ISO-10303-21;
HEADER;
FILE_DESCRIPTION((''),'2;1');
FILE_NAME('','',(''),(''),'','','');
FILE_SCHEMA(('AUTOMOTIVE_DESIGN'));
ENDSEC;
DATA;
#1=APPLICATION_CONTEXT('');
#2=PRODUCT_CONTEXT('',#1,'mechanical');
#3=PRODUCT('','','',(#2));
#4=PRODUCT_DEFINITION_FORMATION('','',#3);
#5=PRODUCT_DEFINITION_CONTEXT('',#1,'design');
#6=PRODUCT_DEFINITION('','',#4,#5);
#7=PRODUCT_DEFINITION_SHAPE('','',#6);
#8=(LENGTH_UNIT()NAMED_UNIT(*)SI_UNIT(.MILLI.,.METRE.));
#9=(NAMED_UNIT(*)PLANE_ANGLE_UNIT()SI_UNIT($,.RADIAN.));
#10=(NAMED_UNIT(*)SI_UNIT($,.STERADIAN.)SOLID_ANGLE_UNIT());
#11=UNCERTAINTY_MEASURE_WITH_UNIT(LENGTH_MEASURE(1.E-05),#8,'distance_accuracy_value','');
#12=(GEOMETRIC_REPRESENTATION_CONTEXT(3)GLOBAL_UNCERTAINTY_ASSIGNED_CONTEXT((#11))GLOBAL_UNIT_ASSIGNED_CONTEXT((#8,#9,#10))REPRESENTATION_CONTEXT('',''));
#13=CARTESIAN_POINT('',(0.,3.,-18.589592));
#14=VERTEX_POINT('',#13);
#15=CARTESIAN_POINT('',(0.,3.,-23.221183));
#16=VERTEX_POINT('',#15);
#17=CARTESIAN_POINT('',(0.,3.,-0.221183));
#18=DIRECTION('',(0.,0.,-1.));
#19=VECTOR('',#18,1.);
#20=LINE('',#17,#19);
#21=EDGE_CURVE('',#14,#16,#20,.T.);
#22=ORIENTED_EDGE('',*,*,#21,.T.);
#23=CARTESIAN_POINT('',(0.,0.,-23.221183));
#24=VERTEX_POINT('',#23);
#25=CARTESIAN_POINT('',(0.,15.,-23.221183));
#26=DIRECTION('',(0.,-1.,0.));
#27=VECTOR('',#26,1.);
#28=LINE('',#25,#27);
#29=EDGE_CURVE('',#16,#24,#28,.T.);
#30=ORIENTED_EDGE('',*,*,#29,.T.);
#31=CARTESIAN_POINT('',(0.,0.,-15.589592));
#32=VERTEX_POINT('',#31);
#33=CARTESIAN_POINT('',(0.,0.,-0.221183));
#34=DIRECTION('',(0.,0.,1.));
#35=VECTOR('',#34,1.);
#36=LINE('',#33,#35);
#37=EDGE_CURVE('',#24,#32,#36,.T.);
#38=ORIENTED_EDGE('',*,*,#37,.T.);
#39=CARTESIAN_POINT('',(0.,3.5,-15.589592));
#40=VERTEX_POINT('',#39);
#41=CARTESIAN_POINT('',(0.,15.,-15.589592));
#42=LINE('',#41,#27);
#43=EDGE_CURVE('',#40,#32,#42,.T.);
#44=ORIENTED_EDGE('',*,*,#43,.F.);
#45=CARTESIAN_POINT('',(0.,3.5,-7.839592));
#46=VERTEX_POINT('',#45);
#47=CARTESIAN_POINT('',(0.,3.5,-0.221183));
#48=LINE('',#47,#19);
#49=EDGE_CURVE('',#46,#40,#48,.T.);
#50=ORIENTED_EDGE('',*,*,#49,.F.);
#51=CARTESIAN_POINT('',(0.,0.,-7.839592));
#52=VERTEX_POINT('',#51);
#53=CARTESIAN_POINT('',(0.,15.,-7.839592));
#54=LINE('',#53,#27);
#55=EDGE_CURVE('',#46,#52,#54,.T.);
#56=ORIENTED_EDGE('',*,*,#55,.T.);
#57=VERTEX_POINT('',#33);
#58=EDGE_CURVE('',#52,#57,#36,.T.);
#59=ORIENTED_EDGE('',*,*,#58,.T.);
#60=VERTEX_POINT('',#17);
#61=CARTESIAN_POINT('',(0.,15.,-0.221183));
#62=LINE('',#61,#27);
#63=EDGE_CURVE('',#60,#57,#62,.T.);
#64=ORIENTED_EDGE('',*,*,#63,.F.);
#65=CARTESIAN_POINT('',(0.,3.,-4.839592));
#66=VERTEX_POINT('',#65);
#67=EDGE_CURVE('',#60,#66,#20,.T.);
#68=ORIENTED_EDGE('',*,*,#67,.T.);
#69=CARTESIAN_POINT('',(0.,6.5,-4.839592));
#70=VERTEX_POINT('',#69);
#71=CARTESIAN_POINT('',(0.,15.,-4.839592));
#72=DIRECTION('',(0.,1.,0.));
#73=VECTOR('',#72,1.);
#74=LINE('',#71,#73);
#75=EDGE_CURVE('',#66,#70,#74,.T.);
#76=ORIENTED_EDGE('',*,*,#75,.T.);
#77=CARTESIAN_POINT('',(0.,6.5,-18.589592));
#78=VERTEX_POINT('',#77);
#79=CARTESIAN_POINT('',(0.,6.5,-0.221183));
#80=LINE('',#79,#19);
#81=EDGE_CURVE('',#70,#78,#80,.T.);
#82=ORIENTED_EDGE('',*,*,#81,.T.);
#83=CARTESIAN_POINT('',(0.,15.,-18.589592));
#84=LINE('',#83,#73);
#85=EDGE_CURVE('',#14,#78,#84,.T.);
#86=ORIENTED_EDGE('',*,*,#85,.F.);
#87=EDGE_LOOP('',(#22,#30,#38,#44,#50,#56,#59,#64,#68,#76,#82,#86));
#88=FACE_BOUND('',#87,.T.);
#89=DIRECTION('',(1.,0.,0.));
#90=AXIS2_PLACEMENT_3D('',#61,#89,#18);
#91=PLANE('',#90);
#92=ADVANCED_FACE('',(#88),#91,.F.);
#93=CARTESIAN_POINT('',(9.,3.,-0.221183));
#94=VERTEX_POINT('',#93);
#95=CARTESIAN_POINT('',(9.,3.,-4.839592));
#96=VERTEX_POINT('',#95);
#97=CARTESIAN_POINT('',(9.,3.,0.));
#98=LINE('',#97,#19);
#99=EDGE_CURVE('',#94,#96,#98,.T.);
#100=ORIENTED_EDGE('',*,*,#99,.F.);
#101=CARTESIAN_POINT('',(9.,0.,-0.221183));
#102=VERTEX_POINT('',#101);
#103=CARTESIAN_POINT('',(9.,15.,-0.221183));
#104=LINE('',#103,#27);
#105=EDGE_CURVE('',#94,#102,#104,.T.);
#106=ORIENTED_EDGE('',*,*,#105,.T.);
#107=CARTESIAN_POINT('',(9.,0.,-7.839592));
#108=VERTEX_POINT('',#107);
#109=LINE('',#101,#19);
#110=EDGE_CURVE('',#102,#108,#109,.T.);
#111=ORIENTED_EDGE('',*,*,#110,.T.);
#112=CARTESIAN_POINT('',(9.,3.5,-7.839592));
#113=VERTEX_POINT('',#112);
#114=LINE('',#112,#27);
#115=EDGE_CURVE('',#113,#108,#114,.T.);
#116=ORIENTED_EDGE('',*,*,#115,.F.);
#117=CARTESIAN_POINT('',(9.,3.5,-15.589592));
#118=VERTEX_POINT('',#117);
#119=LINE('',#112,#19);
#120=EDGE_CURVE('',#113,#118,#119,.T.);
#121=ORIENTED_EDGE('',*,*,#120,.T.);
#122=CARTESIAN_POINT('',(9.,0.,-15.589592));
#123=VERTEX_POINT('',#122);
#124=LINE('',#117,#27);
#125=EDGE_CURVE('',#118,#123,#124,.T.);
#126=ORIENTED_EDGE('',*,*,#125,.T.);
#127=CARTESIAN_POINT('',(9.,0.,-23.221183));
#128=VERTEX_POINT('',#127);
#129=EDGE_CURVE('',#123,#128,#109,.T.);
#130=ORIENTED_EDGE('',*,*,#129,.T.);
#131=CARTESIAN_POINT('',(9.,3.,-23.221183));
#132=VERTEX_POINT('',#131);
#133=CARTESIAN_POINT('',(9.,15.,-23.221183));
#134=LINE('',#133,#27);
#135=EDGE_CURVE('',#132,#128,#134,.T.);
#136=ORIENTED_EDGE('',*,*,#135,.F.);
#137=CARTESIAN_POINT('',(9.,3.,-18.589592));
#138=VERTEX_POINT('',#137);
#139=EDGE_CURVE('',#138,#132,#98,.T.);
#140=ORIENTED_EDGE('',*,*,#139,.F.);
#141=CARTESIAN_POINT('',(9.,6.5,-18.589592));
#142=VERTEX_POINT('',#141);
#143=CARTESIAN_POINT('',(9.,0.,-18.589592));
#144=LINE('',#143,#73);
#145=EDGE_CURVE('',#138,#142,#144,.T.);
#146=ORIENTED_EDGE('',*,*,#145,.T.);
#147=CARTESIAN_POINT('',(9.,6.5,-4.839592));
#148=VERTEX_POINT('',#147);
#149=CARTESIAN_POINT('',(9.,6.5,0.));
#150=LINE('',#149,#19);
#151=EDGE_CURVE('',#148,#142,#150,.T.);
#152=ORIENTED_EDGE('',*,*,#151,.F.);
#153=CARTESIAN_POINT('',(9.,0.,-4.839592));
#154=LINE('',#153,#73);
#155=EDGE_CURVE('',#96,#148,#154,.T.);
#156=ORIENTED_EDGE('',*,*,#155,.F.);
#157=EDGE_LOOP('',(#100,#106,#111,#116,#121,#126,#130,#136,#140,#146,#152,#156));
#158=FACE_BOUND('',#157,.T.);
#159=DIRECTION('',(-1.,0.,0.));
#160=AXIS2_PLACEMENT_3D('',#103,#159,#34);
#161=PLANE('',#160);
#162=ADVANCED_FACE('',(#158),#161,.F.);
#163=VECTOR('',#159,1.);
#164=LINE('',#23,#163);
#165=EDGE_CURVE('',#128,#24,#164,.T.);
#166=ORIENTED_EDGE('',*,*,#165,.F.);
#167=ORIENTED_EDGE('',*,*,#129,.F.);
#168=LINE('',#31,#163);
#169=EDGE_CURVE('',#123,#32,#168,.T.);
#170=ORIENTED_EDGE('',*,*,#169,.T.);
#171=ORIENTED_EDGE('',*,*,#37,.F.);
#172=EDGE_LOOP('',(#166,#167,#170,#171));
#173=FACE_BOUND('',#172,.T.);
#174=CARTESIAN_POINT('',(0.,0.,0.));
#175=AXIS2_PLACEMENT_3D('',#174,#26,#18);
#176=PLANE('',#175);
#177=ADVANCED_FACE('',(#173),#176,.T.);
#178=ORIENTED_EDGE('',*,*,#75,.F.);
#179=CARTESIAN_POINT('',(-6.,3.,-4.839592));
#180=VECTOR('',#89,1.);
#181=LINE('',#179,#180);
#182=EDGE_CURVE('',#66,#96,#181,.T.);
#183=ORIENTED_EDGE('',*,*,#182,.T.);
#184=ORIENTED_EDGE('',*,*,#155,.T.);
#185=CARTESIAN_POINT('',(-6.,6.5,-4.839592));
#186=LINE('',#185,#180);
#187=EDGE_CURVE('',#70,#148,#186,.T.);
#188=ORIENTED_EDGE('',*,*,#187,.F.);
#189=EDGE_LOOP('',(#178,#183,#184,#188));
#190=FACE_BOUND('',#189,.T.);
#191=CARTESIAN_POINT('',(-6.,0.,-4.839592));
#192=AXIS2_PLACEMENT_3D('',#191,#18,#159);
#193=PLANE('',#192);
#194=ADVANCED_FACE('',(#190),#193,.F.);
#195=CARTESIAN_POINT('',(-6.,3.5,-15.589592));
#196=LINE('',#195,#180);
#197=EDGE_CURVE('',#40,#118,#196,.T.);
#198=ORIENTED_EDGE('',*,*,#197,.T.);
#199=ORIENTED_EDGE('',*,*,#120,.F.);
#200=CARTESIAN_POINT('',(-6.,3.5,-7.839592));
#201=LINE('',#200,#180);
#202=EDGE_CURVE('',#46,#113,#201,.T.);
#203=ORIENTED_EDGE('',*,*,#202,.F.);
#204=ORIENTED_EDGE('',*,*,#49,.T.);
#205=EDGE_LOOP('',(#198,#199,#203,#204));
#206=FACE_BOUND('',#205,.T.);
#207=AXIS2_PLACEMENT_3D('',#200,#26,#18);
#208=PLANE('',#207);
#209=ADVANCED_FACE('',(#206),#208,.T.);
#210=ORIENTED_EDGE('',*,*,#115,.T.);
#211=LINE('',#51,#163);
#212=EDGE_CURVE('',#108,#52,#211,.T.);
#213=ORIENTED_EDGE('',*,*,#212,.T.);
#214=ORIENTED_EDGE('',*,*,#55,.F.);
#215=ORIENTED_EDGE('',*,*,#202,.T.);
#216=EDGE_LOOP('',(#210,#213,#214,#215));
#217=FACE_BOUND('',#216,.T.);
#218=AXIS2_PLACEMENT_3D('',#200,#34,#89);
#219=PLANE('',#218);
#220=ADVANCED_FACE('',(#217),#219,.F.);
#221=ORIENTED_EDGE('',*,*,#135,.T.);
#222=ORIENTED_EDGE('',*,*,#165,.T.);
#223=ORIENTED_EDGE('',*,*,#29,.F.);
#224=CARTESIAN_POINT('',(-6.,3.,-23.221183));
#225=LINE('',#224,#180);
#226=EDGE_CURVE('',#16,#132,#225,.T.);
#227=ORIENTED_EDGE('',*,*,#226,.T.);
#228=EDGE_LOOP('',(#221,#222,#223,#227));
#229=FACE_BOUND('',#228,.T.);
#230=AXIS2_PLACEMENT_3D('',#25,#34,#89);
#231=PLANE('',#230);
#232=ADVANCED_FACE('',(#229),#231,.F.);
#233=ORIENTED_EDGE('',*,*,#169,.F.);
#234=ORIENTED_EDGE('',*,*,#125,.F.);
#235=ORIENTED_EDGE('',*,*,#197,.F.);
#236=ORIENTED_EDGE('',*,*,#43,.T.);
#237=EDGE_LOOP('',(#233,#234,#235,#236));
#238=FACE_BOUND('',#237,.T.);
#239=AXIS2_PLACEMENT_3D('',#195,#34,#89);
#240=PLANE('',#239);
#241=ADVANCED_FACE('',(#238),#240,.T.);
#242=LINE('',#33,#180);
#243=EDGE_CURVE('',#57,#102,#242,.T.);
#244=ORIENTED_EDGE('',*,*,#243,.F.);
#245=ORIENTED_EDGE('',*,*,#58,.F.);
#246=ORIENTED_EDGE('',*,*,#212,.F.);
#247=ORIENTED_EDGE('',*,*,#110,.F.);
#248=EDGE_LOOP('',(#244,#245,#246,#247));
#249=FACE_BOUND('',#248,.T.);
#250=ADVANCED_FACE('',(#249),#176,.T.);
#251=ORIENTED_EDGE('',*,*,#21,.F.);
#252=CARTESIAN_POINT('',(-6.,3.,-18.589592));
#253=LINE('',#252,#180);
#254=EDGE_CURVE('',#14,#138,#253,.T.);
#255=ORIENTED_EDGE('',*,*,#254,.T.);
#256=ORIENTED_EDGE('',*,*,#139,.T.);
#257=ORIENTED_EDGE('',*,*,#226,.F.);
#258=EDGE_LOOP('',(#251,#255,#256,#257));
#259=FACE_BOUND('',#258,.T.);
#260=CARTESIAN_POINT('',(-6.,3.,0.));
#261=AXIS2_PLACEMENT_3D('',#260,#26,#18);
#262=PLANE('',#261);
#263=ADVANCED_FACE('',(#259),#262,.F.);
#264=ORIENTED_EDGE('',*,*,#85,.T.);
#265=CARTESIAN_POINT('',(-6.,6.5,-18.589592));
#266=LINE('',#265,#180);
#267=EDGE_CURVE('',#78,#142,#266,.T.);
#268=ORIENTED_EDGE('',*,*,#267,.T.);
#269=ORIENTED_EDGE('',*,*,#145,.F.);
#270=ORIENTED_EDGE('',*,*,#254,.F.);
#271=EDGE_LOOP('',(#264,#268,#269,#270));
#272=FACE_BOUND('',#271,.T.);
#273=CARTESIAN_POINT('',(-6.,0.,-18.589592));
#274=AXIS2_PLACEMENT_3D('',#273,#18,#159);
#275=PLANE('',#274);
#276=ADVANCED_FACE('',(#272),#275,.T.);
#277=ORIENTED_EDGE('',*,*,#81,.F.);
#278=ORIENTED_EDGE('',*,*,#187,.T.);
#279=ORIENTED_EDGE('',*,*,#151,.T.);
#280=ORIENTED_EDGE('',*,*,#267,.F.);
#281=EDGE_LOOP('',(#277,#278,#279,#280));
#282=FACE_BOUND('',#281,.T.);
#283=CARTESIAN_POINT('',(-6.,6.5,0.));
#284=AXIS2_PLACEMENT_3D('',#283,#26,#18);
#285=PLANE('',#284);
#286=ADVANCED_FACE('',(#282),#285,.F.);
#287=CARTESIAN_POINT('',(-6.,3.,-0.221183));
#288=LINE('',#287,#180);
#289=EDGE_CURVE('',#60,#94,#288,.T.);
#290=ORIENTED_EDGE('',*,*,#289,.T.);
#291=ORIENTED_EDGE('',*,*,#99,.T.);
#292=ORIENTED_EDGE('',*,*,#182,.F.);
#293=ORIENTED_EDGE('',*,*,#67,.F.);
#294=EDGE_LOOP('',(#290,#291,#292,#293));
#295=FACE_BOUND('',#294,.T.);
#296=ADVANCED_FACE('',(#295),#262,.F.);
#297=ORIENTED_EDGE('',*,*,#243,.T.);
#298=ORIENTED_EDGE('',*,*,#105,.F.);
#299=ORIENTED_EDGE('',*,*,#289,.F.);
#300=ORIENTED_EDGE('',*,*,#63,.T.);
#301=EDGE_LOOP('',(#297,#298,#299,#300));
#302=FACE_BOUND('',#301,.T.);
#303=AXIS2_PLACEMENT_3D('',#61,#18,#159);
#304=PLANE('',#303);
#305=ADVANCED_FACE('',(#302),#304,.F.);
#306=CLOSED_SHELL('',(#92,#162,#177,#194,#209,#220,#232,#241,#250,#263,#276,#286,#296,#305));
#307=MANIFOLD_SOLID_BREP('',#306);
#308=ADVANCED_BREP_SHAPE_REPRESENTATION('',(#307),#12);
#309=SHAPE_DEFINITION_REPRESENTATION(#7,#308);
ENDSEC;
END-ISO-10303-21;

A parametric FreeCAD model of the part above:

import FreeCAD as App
import Part
import Sketcher


def add_polygon(sketch, points):
    """Adds a closed chain of lines whose ends are joined by coincident constraints."""
    first, n = sketch.GeometryCount, len(points)
    for a, b in zip(points, points[1:] + points[:1]):
        sketch.addGeometry(Part.LineSegment(App.Vector(*a, 0), App.Vector(*b, 0)), False)
    for i in range(n):
        sketch.addConstraint(Sketcher.Constraint("Coincident", first + i, 2, first + (i + 1) % n, 1))

doc = App.newDocument("Part")
params = doc.addObject("Spreadsheet::Sheet", "Params")
for row, (alias, value) in enumerate([
    ("sketch1_width", "9 mm"),
    ("sketch1_height", "23 mm"),
    ("pad1_length", "15 mm"),
    ("sketch2_width", "12 mm"),
    ("sketch2_height", "23 mm"),
    ("sketch2_width2", "3.5 mm"),
    ("sketch2_height2", "13.75 mm"),
    ("pocket1_length", "15 mm"),
], start=1):
    params.set(f"A{row}", alias)
    params.set(f"B{row}", "=" + value)
    params.setAlias(f"B{row}", alias)

body = doc.addObject("PartDesign::Body", "Body")

sketch1 = body.newObject("Sketcher::SketchObject", "Sketch")
sketch1.AttachmentSupport = (doc.getObject("XZ_Plane"), [""])
sketch1.MapMode = "FlatFace"
add_polygon(sketch1, [(0, -23.221183), (0, -0.221183), (9, -0.221183), (9, -23.221183)])
sketch1.addConstraint([
    Sketcher.Constraint("Vertical", 0),
    Sketcher.Constraint("Horizontal", 1),
    Sketcher.Constraint("Vertical", 2),
    Sketcher.Constraint("Horizontal", 3),
    Sketcher.Constraint("PointOnObject", 0, 2, -2),
    Sketcher.Constraint("DistanceX", 1, 1, 1, 2, 9.0),
    Sketcher.Constraint("DistanceY", 0, 1, 0, 2, 23.0),
    Sketcher.Constraint("DistanceY", 0, 2, -1, 1, 0.221183),
])
sketch1.setExpression("Constraints[9]", "Params.sketch1_width")
sketch1.setExpression("Constraints[10]", "Params.sketch1_height")
pad1 = body.newObject("PartDesign::Pad", "Pad")
pad1.Profile = sketch1
pad1.setExpression("Length", "Params.pad1_length")
pad1.Reversed = True

sketch2 = body.newObject("Sketcher::SketchObject", "Sketch001")
sketch2.AttachmentSupport = (doc.getObject("YZ_Plane"), [""])
sketch2.MapMode = "FlatFace"
sketch2.AttachmentOffset = App.Placement(App.Vector(0, 0, 9), App.Rotation())
add_polygon(sketch2, [(3, -0.221183), (3, -4.839592), (6.5, -4.839592), (6.5, -18.589592), (3, -18.589592), (3, -23.221183), (15, -23.221183), (15, -0.221183)])
add_polygon(sketch2, [(3.5, -7.839592), (0, -7.839592), (0, -15.589592), (3.5, -15.589592)])
sketch2.addConstraint([
    Sketcher.Constraint("Vertical", 0),
    Sketcher.Constraint("Horizontal", 1),
    Sketcher.Constraint("Vertical", 2),
    Sketcher.Constraint("Horizontal", 3),
    Sketcher.Constraint("Vertical", 4),
    Sketcher.Constraint("Horizontal", 5),
    Sketcher.Constraint("Vertical", 6),
    Sketcher.Constraint("Horizontal", 7),
    Sketcher.Constraint("Horizontal", 8),
    Sketcher.Constraint("Vertical", 9),
    Sketcher.Constraint("Horizontal", 10),
    Sketcher.Constraint("Vertical", 11),
    Sketcher.Constraint("PointOnObject", 8, 2, -2),
    Sketcher.Constraint("Vertical", 0, 2, 3, 2),
    Sketcher.Constraint("Equal", 3, 8),
    Sketcher.Constraint("DistanceX", 5, 1, 5, 2, 12.0),
    Sketcher.Constraint("DistanceY", 6, 1, 6, 2, 23.0),
    Sketcher.Constraint("DistanceX", 1, 1, 1, 2, 3.5),
    Sketcher.Constraint("DistanceX", -1, 1, 0, 2, 3.0),
    Sketcher.Constraint("DistanceY", 8, 2, 0, 2, 3.0),
    Sketcher.Constraint("DistanceY", 3, 2, 9, 2, 3.0),
    Sketcher.Constraint("DistanceY", 2, 2, 2, 1, 13.75),
    Sketcher.Constraint("DistanceY", 0, 2, 0, 1, 4.618409),
    Sketcher.Constraint("DistanceY", 0, 2, -1, 1, 4.839592),
])
sketch2.setExpression("Constraints[27]", "Params.sketch2_width")
sketch2.setExpression("Constraints[28]", "Params.sketch2_height")
sketch2.setExpression("Constraints[29]", "Params.sketch2_width2")
sketch2.setExpression("Constraints[33]", "Params.sketch2_height2")
pocket1 = body.newObject("PartDesign::Pocket", "Pocket")
pocket1.Profile = sketch2
pocket1.setExpression("Length", "Params.pocket1_length")

doc.recompute()
